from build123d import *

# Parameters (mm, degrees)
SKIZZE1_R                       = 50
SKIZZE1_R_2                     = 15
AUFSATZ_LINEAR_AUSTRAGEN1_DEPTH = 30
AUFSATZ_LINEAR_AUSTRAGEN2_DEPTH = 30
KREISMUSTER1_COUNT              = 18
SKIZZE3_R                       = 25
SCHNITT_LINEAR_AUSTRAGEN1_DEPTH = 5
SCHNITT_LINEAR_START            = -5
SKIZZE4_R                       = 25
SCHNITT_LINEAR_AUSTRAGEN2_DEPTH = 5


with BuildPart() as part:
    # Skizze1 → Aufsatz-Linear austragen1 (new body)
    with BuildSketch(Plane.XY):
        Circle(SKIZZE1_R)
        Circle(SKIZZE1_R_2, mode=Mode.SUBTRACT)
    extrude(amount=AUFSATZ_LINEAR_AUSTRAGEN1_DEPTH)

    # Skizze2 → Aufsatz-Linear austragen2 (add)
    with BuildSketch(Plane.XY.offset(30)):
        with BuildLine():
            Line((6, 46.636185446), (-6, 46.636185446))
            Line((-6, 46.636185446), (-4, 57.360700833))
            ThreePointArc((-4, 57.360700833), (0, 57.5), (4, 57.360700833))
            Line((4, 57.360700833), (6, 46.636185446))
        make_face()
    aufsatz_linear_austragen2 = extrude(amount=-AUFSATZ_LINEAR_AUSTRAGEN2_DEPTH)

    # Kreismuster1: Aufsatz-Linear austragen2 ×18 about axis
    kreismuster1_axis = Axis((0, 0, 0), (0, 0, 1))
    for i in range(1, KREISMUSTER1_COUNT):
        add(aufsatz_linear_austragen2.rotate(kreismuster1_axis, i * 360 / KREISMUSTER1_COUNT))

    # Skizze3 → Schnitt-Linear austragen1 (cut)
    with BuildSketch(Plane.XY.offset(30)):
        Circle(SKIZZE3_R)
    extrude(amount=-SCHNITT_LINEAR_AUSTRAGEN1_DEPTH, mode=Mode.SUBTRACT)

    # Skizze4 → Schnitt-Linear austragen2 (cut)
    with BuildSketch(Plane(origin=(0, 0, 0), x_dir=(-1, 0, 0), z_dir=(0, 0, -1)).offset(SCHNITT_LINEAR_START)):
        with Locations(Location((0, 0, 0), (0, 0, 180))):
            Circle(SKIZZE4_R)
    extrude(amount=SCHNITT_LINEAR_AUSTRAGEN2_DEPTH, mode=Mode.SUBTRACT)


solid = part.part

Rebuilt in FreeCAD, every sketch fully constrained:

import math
import FreeCAD as App
import Part
import Sketcher

doc = App.newDocument("Part")
params = doc.addObject("Spreadsheet::Sheet", "Params")
for row, (alias, value) in enumerate([
    ("sketch1_diameter", "100 mm"),
    ("sketch1_diameter2", "30 mm"),
    ("pad1_length", "30 mm"),
    ("sketch2_radius", "57.5 mm"),
    ("sketch2_width", "12 mm"),
    ("pad2_length", "30 mm"),
    ("sketch3_diameter", "50 mm"),
    ("pocket1_length", "5 mm"),
    ("sketch4_diameter", "50 mm"),
    ("pocket2_length", "5 mm"),
], start=1):
    params.set(f"A{row}", alias)
    params.set(f"B{row}", "=" + value)
    params.setAlias(f"B{row}", alias)

body = doc.addObject("PartDesign::Body", "Body")

# Sketch on XY plane
sketch1 = body.newObject("Sketcher::SketchObject", "Sketch")
sketch1.AttachmentSupport = (doc.getObject("XY_Plane"), [""])
sketch1.MapMode = "FlatFace"
sketch1.addGeometry([
    Part.Circle(App.Vector(0, 0, 0), App.Vector(0, 0, 1), 50),
    Part.Circle(App.Vector(0, 0, 0), App.Vector(0, 0, 1), 15),
], False)
sketch1.addConstraint([
    Sketcher.Constraint("Coincident", 0, 3, -1, 1),
    Sketcher.Constraint("Coincident", 1, 3, -1, 1),
    Sketcher.Constraint("Diameter", 0, 100.0),
    Sketcher.Constraint("Diameter", 1, 30.0),
])
sketch1.setExpression("Constraints[2]", "Params.sketch1_diameter")
sketch1.setExpression("Constraints[3]", "Params.sketch1_diameter2")
pad1 = body.newObject("PartDesign::Pad", "Pad")
pad1.Profile = sketch1
pad1.setExpression("Length", "Params.pad1_length")

# Sketch on XY plane
sketch2 = body.newObject("Sketcher::SketchObject", "Sketch001")
sketch2.AttachmentSupport = (doc.getObject("XY_Plane"), [""])
sketch2.MapMode = "FlatFace"
sketch2.AttachmentOffset = App.Placement(App.Vector(0, 0, 30), App.Rotation())
sketch2.addGeometry([
    Part.LineSegment(App.Vector(-6, 47, 0), App.Vector(6, 47, 0)),
    Part.LineSegment(App.Vector(6, 47, 0), App.Vector(4, 57, 0)),
    Part.ArcOfCircle(Part.Circle(App.Vector(0, 0, 0), App.Vector(0, 0, 1), 58), math.radians(86.01), math.radians(93.99)),
    Part.LineSegment(App.Vector(-4, 57, 0), App.Vector(-6, 47, 0)),
], False)
sketch2.addConstraint([
    Sketcher.Constraint("Coincident", 0, 2, 1, 1),
    Sketcher.Constraint("Coincident", 1, 2, 2, 1),
    Sketcher.Constraint("Coincident", 2, 2, 3, 1),
    Sketcher.Constraint("Coincident", 3, 2, 0, 1),
    Sketcher.Constraint("Horizontal", 0),
    Sketcher.Constraint("Coincident", 2, 3, -1, 1),
    Sketcher.Constraint("Horizontal", 1, 2, 2, 2),
    Sketcher.Constraint("Equal", 1, 3),
    Sketcher.Constraint("Radius", 2, 57.5),
    Sketcher.Constraint("DistanceX", 0, 1, 0, 2, 12.0),
    Sketcher.Constraint("DistanceX", -1, 1, 1, 2, 4.0),
    Sketcher.Constraint("Distance", 1, 10.90941),
])
sketch2.setExpression("Constraints[8]", "Params.sketch2_radius")
sketch2.setExpression("Constraints[9]", "Params.sketch2_width")
pad2 = body.newObject("PartDesign::Pad", "Pad001")
pad2.Profile = sketch2
pad2.setExpression("Length", "Params.pad2_length")
pad2.Reversed = True
doc.recompute()

polarpattern = body.newObject("PartDesign::PolarPattern", "PolarPattern")
polarpattern.Originals = [pad2]
polarpattern.Axis = (doc.getObject("Z_Axis"), [""])
polarpattern.Angle = 360
polarpattern.Occurrences = 18
body.Tip = polarpattern

# Sketch on XY plane
sketch3 = body.newObject("Sketcher::SketchObject", "Sketch002")
sketch3.AttachmentSupport = (doc.getObject("XY_Plane"), [""])
sketch3.MapMode = "FlatFace"
sketch3.AttachmentOffset = App.Placement(App.Vector(0, 0, 30), App.Rotation())
sketch3.addGeometry(Part.Circle(App.Vector(0, 0, 0), App.Vector(0, 0, 1), 25), False)
sketch3.addConstraint([
    Sketcher.Constraint("Coincident", 0, 3, -1, 1),
    Sketcher.Constraint("Diameter", 0, 50.0),
])
sketch3.setExpression("Constraints[1]", "Params.sketch3_diameter")
pocket1 = body.newObject("PartDesign::Pocket", "Pocket")
pocket1.Profile = sketch3
pocket1.setExpression("Length", "Params.pocket1_length")

# Sketch on XY plane
sketch4 = body.newObject("Sketcher::SketchObject", "Sketch003")
sketch4.AttachmentSupport = (doc.getObject("XY_Plane"), [""])
sketch4.MapMode = "FlatFace"
sketch4.AttachmentOffset = App.Placement(App.Vector(0, 0, 5), App.Rotation())
sketch4.addGeometry(Part.Circle(App.Vector(0, 0, 0), App.Vector(0, 0, 1), 25), False)
sketch4.addConstraint([
    Sketcher.Constraint("Coincident", 0, 3, -1, 1),
    Sketcher.Constraint("Diameter", 0, 50.0),
])
sketch4.setExpression("Constraints[1]", "Params.sketch4_diameter")
pocket2 = body.newObject("PartDesign::Pocket", "Pocket001")
pocket2.Profile = sketch4
pocket2.setExpression("Length", "Params.pocket2_length")

doc.recompute()
